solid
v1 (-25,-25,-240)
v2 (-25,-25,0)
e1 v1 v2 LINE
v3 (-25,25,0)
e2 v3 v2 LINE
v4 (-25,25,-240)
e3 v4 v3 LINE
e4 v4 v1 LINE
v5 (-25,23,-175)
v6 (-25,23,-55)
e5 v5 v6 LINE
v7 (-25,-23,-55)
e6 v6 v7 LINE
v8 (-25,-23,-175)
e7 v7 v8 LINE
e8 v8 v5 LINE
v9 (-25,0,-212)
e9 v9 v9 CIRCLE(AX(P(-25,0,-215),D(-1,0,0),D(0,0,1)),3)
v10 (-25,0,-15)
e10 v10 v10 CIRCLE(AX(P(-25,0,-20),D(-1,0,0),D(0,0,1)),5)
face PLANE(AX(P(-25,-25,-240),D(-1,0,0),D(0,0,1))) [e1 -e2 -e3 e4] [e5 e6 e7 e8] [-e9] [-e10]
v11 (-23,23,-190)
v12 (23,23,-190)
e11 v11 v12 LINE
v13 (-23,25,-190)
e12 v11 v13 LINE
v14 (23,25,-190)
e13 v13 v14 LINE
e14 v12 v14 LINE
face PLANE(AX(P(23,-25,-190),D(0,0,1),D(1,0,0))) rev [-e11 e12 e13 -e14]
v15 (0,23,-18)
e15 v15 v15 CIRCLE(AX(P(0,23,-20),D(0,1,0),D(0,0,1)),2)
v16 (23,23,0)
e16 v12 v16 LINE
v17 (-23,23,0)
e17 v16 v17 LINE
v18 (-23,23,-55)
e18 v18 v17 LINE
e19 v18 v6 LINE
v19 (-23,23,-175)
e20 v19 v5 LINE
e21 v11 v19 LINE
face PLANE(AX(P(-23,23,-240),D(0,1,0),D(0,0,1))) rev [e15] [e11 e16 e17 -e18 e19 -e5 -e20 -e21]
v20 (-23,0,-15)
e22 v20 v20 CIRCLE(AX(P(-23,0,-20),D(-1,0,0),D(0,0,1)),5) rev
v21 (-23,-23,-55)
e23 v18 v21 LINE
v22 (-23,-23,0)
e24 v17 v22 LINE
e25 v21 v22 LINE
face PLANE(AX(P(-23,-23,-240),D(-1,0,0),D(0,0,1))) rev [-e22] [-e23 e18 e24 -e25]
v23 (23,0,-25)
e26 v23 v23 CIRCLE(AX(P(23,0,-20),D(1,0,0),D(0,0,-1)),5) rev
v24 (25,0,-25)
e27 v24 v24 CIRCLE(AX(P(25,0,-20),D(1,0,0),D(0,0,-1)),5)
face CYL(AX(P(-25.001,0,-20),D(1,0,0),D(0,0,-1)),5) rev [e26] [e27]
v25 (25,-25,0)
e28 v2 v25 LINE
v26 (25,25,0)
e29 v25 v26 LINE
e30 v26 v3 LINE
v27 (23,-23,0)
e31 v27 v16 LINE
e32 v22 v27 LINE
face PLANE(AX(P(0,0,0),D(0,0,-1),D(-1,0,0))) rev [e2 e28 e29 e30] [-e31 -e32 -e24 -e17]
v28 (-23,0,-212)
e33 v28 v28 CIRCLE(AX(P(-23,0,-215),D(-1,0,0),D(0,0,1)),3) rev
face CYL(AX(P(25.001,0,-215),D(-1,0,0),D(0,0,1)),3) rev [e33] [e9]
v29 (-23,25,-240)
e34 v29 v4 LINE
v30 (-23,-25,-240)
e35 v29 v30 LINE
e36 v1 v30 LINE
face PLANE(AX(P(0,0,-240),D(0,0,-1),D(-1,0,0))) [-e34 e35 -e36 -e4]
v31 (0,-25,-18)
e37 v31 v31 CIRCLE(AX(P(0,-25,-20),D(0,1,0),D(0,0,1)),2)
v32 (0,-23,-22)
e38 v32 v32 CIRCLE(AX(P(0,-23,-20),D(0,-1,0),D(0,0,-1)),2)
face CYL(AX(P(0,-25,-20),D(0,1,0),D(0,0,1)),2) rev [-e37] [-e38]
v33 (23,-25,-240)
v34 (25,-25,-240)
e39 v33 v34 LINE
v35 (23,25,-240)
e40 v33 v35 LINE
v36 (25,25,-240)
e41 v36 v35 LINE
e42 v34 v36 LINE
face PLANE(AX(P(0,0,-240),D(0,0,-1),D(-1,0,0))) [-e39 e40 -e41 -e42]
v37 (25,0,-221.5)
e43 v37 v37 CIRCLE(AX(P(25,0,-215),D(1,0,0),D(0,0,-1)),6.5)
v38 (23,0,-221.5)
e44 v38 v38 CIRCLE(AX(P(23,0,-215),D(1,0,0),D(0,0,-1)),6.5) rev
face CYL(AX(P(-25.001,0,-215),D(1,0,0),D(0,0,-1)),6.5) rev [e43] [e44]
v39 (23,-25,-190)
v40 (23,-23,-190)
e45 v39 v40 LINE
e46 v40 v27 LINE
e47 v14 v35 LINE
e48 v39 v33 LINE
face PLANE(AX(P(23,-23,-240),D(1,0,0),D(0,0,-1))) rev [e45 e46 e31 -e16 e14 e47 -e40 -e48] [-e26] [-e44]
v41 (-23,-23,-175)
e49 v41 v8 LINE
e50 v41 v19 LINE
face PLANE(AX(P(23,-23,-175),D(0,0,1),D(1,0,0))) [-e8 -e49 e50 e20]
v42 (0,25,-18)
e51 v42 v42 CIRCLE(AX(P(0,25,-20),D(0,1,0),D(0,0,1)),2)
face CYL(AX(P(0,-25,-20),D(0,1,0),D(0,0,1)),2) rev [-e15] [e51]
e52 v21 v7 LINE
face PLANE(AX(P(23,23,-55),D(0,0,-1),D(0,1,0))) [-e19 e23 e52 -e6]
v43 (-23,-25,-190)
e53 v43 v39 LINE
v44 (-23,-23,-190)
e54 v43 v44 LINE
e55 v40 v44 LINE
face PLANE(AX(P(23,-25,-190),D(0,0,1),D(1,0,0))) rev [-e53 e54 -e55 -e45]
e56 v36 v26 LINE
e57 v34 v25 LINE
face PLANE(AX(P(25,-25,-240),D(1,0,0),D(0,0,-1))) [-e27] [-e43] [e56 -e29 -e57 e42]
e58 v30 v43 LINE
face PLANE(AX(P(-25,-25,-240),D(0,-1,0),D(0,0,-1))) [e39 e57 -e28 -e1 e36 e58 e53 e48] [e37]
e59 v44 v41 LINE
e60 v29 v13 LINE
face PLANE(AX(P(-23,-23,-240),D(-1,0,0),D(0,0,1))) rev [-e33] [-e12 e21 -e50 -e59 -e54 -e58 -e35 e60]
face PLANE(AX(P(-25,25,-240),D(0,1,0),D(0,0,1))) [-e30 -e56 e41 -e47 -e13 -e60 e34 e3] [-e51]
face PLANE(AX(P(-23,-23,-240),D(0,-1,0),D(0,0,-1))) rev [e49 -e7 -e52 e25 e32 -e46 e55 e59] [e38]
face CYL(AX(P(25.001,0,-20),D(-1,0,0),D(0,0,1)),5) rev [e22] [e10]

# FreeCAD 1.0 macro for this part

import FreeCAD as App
import Part
import Sketcher

V = App.Vector
Q = App.Units.Quantity

doc = App.newDocument("Part")
body = doc.addObject("PartDesign::Body", "Body")

sketch1 = doc.addObject("Sketcher::SketchObject", "Sketch")
body.addObject(sketch1)
sketch1.AttachmentSupport = (doc.XY_Plane, [""])
sketch1.MapMode = "FlatFace"
sketch1.addGeometry(Part.LineSegment(V(-25, 25, 0), V(-25, -25, 0)), False)
sketch1.addGeometry(Part.LineSegment(V(-25, -25, 0), V(25, -25, 0)), False)
sketch1.addGeometry(Part.LineSegment(V(25, -25, 0), V(25, 25, 0)), False)
sketch1.addGeometry(Part.LineSegment(V(25, 25, 0), V(-25, 25, 0)), False)
sketch1.addGeometry(Part.LineSegment(V(23, -23, 0), V(-23, -23, 0)), False)
sketch1.addGeometry(Part.LineSegment(V(-23, -23, 0), V(-23, 23, 0)), False)
sketch1.addGeometry(Part.LineSegment(V(-23, 23, 0), V(23, 23, 0)), False)
sketch1.addGeometry(Part.LineSegment(V(23, 23, 0), V(23, -23, 0)), False)
sketch1.addConstraint(Sketcher.Constraint("Coincident", 0, 2, 1, 1))
sketch1.addConstraint(Sketcher.Constraint("Coincident", 1, 2, 2, 1))
sketch1.addConstraint(Sketcher.Constraint("Coincident", 2, 2, 3, 1))
sketch1.addConstraint(Sketcher.Constraint("Coincident", 3, 2, 0, 1))
sketch1.addConstraint(Sketcher.Constraint("Coincident", 4, 2, 5, 1))
sketch1.addConstraint(Sketcher.Constraint("Coincident", 5, 2, 6, 1))
sketch1.addConstraint(Sketcher.Constraint("Coincident", 6, 2, 7, 1))
sketch1.addConstraint(Sketcher.Constraint("Coincident", 7, 2, 4, 1))
sketch1.addConstraint(Sketcher.Constraint("Vertical", 0))
sketch1.addConstraint(Sketcher.Constraint("Horizontal", 1))
sketch1.addConstraint(Sketcher.Constraint("Vertical", 2))
sketch1.addConstraint(Sketcher.Constraint("Horizontal", 3))
sketch1.addConstraint(Sketcher.Constraint("Horizontal", 4))
sketch1.addConstraint(Sketcher.Constraint("Vertical", 5))
sketch1.addConstraint(Sketcher.Constraint("Horizontal", 6))
sketch1.addConstraint(Sketcher.Constraint("Vertical", 7))
sketch1.addConstraint(Sketcher.Constraint("Symmetric", 0, 2, 2, 2, -1, 1))
sketch1.addConstraint(Sketcher.Constraint("Symmetric", 4, 2, 6, 2, -1, 1))
sketch1.addConstraint(Sketcher.Constraint("Equal", 3, 0))
sketch1.addConstraint(Sketcher.Constraint("Equal", 6, 5))
sketch1.addConstraint(Sketcher.Constraint("DistanceX", 1, 1, 1, 2, Q("50 mm")))
sketch1.addConstraint(Sketcher.Constraint("DistanceX", 4, 2, 4, 1, Q("46 mm")))
pad1 = doc.addObject("PartDesign::Pad", "Pad")
body.addObject(pad1)
pad1.Profile = sketch1
pad1.Length = 240
pad1.Reversed = True

sketch2 = doc.addObject("Sketcher::SketchObject", "Sketch001")
body.addObject(sketch2)
sketch2.AttachmentSupport = (doc.XZ_Plane, [""])
sketch2.MapMode = "FlatFace"
sketch2.AttachmentOffset = App.Placement(V(0, 0, -25), App.Rotation())
sketch2.addGeometry(Part.LineSegment(V(-23, -240, 0), V(-23, -190, 0)), False)
sketch2.addGeometry(Part.LineSegment(V(-23, -190, 0), V(23, -190, 0)), False)
sketch2.addGeometry(Part.LineSegment(V(23, -190, 0), V(23, -240, 0)), False)
sketch2.addGeometry(Part.LineSegment(V(23, -240, 0), V(-23, -240, 0)), False)
sketch2.addConstraint(Sketcher.Constraint("Coincident", 0, 2, 1, 1))
sketch2.addConstraint(Sketcher.Constraint("Coincident", 1, 2, 2, 1))
sketch2.addConstraint(Sketcher.Constraint("Coincident", 2, 2, 3, 1))
sketch2.addConstraint(Sketcher.Constraint("Coincident", 3, 2, 0, 1))
sketch2.addConstraint(Sketcher.Constraint("Vertical", 0))
sketch2.addConstraint(Sketcher.Constraint("Horizontal", 1))
sketch2.addConstraint(Sketcher.Constraint("Vertical", 2))
sketch2.addConstraint(Sketcher.Constraint("Horizontal", 3))
sketch2.addConstraint(Sketcher.Constraint("DistanceX", 1, 1, 1, 2, Q("46 mm")))
sketch2.addConstraint(Sketcher.Constraint("DistanceY", 0, 1, 0, 2, Q("50 mm")))
sketch2.addConstraint(Sketcher.Constraint("DistanceX", 0, 2, -1, 1, Q("23 mm")))
sketch2.addConstraint(Sketcher.Constraint("DistanceY", 0, 2, -1, 1, Q("190 mm")))
pocket1 = doc.addObject("PartDesign::Pocket", "Pocket")
body.addObject(pocket1)
pocket1.Profile = sketch2
pocket1.Type = "ThroughAll"
pocket1.Reversed = True

sketch3 = doc.addObject("Sketcher::SketchObject", "Sketch002")
body.addObject(sketch3)
sketch3.AttachmentSupport = (doc.YZ_Plane, [""])
sketch3.MapMode = "FlatFace"
sketch3.AttachmentOffset = App.Placement(V(0, 0, 25), App.Rotation())
sketch3.addGeometry(Part.Circle(V(0, -215, 0), V(0, 0, 1), 6), False)
sketch3.addConstraint(Sketcher.Constraint("PointOnObject", 0, 3, -2))
sketch3.addConstraint(Sketcher.Constraint("Diameter", 0, Q("13 mm")))
sketch3.addConstraint(Sketcher.Constraint("DistanceY", 0, 3, -1, 1, Q("215 mm")))
pocket2 = doc.addObject("PartDesign::Pocket", "Pocket001")
body.addObject(pocket2)
pocket2.Profile = sketch3
pocket2.Type = "UpToFirst"

sketch4 = doc.addObject("Sketcher::SketchObject", "Sketch003")
body.addObject(sketch4)
sketch4.AttachmentSupport = (doc.YZ_Plane, [""])
sketch4.MapMode = "FlatFace"
sketch4.AttachmentOffset = App.Placement(V(0, 0, 25), App.Rotation())
sketch4.addGeometry(Part.Circle(V(0, -20, 0), V(0, 0, 1), 5), False)
sketch4.addConstraint(Sketcher.Constraint("PointOnObject", 0, 3, -2))
sketch4.addConstraint(Sketcher.Constraint("Diameter", 0, Q("10 mm")))
sketch4.addConstraint(Sketcher.Constraint("DistanceY", 0, 3, -1, 1, Q("20 mm")))
pocket3 = doc.addObject("PartDesign::Pocket", "Pocket002")
body.addObject(pocket3)
pocket3.Profile = sketch4
pocket3.Type = "UpToFirst"

sketch5 = doc.addObject("Sketcher::SketchObject", "Sketch004")
body.addObject(sketch5)
sketch5.AttachmentSupport = (doc.YZ_Plane, [""])
sketch5.MapMode = "FlatFace"
sketch5.AttachmentOffset = App.Placement(V(0, 0, -25), App.Rotation())
sketch5.addGeometry(Part.Circle(V(0, -215, 0), V(0, 0, 1), 3), False)
sketch5.addConstraint(Sketcher.Constraint("PointOnObject", 0, 3, -2))
sketch5.addConstraint(Sketcher.Constraint("Diameter", 0, Q("6 mm")))
sketch5.addConstraint(Sketcher.Constraint("DistanceY", 0, 3, -1, 1, Q("215 mm")))
pocket4 = doc.addObject("PartDesign::Pocket", "Pocket003")
body.addObject(pocket4)
pocket4.Profile = sketch5
pocket4.Type = "UpToFirst"
pocket4.Reversed = True

sketch6 = doc.addObject("Sketcher::SketchObject", "Sketch005")
body.addObject(sketch6)
sketch6.AttachmentSupport = (doc.YZ_Plane, [""])
sketch6.MapMode = "FlatFace"
sketch6.AttachmentOffset = App.Placement(V(0, 0, -25), App.Rotation())
sketch6.addGeometry(Part.Circle(V(0, -20, 0), V(0, 0, 1), 5), False)
sketch6.addConstraint(Sketcher.Constraint("PointOnObject", 0, 3, -2))
sketch6.addConstraint(Sketcher.Constraint("Diameter", 0, Q("10 mm")))
sketch6.addConstraint(Sketcher.Constraint("DistanceY", 0, 3, -1, 1, Q("20 mm")))
pocket5 = doc.addObject("PartDesign::Pocket", "Pocket004")
body.addObject(pocket5)
pocket5.Profile = sketch6
pocket5.Type = "UpToFirst"
pocket5.Reversed = True

sketch7 = doc.addObject("Sketcher::SketchObject", "Sketch006")
body.addObject(sketch7)
sketch7.AttachmentSupport = (doc.YZ_Plane, [""])
sketch7.MapMode = "FlatFace"
sketch7.AttachmentOffset = App.Placement(V(0, 0, -25), App.Rotation())
sketch7.addGeometry(Part.LineSegment(V(23, -55, 0), V(-23, -55, 0)), False)
sketch7.addGeometry(Part.LineSegment(V(-23, -55, 0), V(-23, -175, 0)), False)
sketch7.addGeometry(Part.LineSegment(V(-23, -175, 0), V(23, -175, 0)), False)
sketch7.addGeometry(Part.LineSegment(V(23, -175, 0), V(23, -55, 0)), False)
sketch7.addConstraint(Sketcher.Constraint("Coincident", 0, 2, 1, 1))
sketch7.addConstraint(Sketcher.Constraint("Coincident", 1, 2, 2, 1))
sketch7.addConstraint(Sketcher.Constraint("Coincident", 2, 2, 3, 1))
sketch7.addConstraint(Sketcher.Constraint("Coincident", 3, 2, 0, 1))
sketch7.addConstraint(Sketcher.Constraint("Horizontal", 0))
sketch7.addConstraint(Sketcher.Constraint("Vertical", 1))
sketch7.addConstraint(Sketcher.Constraint("Horizontal", 2))
sketch7.addConstraint(Sketcher.Constraint("Vertical", 3))
sketch7.addConstraint(Sketcher.Constraint("DistanceX", 0, 2, 0, 1, Q("46 mm")))
sketch7.addConstraint(Sketcher.Constraint("DistanceY", 1, 2, 1, 1, Q("120 mm")))
sketch7.addConstraint(Sketcher.Constraint("DistanceX", 0, 2, -1, 1, Q("23 mm")))
sketch7.addConstraint(Sketcher.Constraint("DistanceY", 0, 2, -1, 1, Q("55 mm")))
pocket6 = doc.addObject("PartDesign::Pocket", "Pocket005")
body.addObject(pocket6)
pocket6.Profile = sketch7
pocket6.Length = 48
pocket6.Reversed = True

sketch8 = doc.addObject("Sketcher::SketchObject", "Sketch007")
body.addObject(sketch8)
sketch8.AttachmentSupport = (doc.XZ_Plane, [""])
sketch8.MapMode = "FlatFace"
sketch8.AttachmentOffset = App.Placement(V(0, 0, -25), App.Rotation())
sketch8.addGeometry(Part.Circle(V(0, -20, 0), V(0, 0, 1), 2), False)
sketch8.addConstraint(Sketcher.Constraint("PointOnObject", 0, 3, -2))
sketch8.addConstraint(Sketcher.Constraint("Diameter", 0, Q("4 mm")))
sketch8.addConstraint(Sketcher.Constraint("DistanceY", 0, 3, -1, 1, Q("20 mm")))
pocket7 = doc.addObject("PartDesign::Pocket", "Pocket006")
body.addObject(pocket7)
pocket7.Profile = sketch8
pocket7.Type = "ThroughAll"
pocket7.Reversed = True

doc.recompute()
